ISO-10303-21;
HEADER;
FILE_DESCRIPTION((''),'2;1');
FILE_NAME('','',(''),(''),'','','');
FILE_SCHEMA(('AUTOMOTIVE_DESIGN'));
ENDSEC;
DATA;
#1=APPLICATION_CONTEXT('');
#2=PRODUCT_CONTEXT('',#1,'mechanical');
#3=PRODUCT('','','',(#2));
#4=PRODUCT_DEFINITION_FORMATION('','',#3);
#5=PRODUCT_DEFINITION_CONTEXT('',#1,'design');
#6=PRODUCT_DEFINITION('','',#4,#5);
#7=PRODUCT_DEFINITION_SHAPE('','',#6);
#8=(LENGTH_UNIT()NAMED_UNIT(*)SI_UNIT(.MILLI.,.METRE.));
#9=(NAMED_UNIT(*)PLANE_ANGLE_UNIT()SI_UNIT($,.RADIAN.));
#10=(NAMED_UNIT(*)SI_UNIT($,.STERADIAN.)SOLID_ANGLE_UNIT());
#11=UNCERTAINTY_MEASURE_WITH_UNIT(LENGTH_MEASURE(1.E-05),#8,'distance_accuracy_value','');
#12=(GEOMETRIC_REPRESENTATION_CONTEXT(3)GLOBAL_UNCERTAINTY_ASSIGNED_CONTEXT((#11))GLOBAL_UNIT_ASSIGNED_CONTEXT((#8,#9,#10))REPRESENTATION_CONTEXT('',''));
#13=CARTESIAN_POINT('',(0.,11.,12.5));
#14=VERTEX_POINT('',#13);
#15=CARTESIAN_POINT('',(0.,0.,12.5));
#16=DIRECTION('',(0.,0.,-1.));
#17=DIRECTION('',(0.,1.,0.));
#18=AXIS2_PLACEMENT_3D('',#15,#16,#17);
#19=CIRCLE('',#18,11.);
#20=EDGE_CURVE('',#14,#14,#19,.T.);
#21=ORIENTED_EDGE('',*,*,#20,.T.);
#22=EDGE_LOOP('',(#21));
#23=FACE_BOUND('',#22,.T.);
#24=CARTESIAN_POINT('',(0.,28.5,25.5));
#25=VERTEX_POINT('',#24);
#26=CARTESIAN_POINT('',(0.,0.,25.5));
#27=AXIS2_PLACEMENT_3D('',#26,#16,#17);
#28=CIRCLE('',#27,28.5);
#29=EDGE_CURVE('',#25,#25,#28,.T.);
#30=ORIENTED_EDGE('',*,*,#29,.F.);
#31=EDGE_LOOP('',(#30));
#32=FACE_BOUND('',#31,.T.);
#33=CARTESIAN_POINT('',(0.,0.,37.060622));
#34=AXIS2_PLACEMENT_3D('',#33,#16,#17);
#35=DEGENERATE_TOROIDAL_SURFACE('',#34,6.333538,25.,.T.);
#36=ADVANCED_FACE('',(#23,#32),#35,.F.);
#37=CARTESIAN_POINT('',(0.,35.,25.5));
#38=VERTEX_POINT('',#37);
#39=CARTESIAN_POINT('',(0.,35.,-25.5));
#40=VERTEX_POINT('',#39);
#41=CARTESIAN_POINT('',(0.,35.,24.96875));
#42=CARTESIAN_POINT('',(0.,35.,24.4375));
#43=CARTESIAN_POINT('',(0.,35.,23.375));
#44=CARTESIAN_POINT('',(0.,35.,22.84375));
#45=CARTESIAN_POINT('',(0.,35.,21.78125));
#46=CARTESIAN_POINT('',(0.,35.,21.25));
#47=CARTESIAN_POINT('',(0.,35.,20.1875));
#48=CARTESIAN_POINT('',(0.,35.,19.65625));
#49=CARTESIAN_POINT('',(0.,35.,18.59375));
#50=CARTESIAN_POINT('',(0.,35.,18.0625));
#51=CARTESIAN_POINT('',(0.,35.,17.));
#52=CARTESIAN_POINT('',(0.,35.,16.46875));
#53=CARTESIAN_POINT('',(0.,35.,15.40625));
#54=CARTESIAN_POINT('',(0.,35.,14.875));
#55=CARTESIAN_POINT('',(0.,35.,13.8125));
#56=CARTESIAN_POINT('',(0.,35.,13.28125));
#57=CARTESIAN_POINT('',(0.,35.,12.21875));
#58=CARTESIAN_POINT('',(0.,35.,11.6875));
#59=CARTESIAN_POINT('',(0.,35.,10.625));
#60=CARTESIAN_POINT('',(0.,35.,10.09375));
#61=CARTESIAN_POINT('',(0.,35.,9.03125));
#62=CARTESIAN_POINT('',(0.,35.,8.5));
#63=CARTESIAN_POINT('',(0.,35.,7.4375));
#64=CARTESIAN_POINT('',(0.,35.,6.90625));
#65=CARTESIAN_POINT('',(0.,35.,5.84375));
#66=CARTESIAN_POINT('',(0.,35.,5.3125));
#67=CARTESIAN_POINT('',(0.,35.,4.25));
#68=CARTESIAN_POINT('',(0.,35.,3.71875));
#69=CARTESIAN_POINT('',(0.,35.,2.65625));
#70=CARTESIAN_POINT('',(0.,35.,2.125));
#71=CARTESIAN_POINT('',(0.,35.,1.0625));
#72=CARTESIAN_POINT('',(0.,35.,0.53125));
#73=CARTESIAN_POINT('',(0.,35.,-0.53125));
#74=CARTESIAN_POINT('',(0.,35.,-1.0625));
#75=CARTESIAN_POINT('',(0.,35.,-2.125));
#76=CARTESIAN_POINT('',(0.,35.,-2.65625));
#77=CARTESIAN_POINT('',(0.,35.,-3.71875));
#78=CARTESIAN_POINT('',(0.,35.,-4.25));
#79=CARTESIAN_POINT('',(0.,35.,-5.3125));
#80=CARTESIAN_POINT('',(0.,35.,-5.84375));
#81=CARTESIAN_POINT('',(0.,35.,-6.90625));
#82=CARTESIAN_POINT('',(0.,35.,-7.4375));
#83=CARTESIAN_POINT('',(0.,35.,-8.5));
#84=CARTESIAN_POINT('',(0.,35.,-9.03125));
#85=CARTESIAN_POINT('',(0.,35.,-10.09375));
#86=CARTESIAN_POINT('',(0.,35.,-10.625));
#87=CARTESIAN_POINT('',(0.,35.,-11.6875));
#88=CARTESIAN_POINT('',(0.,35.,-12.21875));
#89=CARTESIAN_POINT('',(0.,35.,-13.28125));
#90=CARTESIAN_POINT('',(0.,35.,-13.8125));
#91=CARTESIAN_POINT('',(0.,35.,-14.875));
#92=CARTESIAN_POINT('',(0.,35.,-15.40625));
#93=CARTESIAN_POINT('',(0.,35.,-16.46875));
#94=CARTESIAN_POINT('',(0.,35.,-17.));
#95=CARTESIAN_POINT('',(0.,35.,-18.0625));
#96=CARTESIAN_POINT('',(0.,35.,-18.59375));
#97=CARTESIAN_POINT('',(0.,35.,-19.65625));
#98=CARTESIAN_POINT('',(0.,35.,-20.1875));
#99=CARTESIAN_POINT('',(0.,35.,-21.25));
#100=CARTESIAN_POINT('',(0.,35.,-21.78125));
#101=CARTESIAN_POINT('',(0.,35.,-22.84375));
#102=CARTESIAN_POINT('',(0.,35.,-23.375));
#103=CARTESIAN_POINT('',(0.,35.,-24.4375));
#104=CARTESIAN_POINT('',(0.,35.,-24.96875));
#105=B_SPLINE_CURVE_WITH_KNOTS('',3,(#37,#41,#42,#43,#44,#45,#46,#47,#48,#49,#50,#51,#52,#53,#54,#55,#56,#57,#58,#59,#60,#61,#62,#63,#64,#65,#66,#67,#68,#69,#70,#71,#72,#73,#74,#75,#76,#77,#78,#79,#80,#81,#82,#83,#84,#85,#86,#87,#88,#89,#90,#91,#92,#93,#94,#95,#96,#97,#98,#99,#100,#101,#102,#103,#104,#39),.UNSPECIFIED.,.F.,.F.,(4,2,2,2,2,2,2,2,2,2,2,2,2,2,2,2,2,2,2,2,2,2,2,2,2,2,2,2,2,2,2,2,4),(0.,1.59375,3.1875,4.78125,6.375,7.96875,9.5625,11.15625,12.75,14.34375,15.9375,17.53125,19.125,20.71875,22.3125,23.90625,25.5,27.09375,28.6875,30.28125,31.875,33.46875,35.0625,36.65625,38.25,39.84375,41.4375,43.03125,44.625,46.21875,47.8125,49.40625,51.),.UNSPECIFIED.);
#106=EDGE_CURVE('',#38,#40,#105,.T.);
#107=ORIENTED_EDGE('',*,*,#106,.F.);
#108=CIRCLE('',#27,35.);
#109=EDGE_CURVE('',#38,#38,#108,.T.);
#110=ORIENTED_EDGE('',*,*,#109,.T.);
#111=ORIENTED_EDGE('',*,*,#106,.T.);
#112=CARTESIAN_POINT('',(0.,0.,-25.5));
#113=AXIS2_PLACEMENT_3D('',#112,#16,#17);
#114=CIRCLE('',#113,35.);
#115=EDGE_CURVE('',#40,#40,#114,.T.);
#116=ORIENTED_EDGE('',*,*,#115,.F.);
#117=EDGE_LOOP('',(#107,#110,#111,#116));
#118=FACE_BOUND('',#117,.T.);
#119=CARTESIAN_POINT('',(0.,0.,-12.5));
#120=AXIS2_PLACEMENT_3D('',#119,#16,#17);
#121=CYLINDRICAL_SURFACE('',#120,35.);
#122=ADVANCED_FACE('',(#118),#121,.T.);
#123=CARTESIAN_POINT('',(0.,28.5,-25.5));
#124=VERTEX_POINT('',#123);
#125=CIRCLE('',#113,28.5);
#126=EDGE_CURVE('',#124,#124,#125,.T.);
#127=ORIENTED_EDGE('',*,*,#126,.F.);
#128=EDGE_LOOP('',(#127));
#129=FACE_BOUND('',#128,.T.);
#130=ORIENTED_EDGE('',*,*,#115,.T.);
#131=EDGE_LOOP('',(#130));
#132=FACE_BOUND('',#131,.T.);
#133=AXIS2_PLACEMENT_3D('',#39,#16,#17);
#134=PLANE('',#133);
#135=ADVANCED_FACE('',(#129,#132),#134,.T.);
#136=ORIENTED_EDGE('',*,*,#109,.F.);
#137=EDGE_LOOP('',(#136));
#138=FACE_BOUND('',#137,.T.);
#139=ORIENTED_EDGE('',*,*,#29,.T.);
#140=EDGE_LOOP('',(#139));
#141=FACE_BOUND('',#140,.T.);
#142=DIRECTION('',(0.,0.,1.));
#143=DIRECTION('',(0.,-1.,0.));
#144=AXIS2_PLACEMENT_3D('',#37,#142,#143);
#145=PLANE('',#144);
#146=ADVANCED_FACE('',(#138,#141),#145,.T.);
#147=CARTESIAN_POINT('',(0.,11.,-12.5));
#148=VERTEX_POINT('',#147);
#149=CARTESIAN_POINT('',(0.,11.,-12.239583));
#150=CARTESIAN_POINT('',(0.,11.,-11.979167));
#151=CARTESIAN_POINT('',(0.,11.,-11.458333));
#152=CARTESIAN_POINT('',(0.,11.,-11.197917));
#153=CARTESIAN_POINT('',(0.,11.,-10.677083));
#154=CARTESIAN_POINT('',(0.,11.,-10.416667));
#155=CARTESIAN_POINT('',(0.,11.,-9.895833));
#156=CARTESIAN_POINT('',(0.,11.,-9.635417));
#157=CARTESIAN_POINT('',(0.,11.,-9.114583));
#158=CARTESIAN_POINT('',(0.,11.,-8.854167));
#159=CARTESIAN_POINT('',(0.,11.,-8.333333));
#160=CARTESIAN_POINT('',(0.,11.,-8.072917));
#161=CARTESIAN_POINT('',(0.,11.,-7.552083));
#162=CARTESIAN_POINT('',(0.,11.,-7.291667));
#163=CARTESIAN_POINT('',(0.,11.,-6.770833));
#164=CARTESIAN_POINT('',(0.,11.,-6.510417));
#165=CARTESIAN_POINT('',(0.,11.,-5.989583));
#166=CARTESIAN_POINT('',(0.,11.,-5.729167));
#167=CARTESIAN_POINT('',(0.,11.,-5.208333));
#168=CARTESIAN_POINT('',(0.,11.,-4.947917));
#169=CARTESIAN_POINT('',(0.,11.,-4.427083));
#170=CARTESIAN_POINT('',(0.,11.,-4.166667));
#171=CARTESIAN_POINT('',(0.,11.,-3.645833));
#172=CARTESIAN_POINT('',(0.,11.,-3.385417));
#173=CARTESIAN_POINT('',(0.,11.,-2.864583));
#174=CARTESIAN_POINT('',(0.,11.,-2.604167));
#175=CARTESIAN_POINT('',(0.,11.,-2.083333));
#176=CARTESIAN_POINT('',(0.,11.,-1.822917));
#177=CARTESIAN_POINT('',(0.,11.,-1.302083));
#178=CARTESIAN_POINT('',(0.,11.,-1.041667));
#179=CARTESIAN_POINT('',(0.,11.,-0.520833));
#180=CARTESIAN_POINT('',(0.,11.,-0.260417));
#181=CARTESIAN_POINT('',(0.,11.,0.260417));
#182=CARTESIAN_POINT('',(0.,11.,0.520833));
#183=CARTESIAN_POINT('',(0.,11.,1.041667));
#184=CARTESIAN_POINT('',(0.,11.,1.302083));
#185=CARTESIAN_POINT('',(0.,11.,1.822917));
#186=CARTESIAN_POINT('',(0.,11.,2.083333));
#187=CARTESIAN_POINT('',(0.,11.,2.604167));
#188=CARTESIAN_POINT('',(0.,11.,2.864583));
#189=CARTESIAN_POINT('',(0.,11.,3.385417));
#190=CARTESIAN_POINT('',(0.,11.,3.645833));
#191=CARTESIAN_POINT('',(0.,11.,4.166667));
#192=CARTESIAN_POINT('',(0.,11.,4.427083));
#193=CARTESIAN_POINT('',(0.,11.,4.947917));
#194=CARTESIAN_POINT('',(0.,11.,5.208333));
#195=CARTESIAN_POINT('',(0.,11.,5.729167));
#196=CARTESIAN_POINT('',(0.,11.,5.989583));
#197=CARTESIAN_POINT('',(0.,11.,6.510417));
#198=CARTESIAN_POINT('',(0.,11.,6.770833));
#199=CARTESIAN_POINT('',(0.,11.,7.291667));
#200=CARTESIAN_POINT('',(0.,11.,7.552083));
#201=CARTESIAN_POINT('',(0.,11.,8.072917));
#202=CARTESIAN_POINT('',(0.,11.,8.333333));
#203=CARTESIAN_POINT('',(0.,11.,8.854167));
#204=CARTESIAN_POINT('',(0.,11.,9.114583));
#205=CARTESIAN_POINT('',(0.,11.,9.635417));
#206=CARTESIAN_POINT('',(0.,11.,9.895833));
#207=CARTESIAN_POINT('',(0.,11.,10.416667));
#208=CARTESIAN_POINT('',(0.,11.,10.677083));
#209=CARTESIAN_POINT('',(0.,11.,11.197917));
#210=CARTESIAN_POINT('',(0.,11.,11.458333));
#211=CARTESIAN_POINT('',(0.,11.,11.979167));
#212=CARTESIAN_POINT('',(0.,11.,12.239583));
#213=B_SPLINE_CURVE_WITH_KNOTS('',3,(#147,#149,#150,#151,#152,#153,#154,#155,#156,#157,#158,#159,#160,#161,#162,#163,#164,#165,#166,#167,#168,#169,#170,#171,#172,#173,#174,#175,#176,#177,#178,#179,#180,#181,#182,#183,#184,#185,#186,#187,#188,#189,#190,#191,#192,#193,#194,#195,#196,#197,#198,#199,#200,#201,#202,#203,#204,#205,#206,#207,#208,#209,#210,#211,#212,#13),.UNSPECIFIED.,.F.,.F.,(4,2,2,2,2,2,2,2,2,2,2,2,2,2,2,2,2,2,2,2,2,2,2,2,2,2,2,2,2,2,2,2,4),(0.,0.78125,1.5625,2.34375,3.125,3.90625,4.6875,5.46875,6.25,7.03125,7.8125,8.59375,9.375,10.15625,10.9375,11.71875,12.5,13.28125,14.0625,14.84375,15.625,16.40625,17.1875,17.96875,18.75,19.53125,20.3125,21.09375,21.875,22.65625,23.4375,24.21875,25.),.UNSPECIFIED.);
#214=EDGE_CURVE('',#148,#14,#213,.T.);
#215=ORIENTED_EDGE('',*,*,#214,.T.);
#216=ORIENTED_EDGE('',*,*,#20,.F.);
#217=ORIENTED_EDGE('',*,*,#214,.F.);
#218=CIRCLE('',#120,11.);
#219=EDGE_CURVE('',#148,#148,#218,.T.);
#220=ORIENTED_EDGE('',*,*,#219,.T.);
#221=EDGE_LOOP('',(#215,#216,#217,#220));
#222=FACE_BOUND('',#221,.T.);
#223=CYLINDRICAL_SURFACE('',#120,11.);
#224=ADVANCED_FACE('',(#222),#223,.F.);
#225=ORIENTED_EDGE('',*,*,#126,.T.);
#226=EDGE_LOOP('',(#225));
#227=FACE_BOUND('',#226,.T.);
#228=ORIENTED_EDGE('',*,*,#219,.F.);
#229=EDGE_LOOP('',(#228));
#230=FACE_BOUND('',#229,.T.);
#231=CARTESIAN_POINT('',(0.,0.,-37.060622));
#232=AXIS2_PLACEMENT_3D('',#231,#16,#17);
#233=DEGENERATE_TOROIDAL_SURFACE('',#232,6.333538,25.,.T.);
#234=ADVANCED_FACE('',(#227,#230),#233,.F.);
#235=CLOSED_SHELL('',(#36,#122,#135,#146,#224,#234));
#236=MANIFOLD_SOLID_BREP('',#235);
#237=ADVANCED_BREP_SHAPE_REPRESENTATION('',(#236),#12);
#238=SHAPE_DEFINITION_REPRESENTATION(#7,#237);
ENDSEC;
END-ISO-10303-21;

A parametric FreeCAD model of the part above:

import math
import FreeCAD as App
import Part
import Sketcher

V = App.Vector

doc = App.newDocument("Part")
params = doc.addObject("Spreadsheet::Sheet", "Params")
for row, (alias, value) in enumerate([
    ("sketch1_radius", "25 mm"),
    ("sketch1_height", "51 mm"),
    ("sketch1_height2", "25 mm"),
    ("sketch1_width", "6.5 mm"),
    ("revolution_angle", "360 deg"),
], start=1):
    params.set(f"A{row}", alias)
    params.set(f"B{row}", "=" + value)
    params.setAlias(f"B{row}", alias)

body = doc.addObject("PartDesign::Body", "Body")

# Sketch on YZ plane
sketch1 = body.newObject("Sketcher::SketchObject", "Sketch")
sketch1.AttachmentSupport = (doc.getObject("YZ_Plane"), [""])
sketch1.MapMode = "FlatFace"
sketch1.addGeometry(Part.LineSegment(V(35, -26, 0), V(35, 26, 0)), False)
sketch1.addGeometry(Part.LineSegment(V(35, 26, 0), V(28, 26, 0)), False)
sketch1.addGeometry(Part.ArcOfCircle(Part.Circle(V(6, 37, 0), V(0, 0, 1), 25), math.radians(-79), math.radians(-28)), False)
sketch1.addGeometry(Part.LineSegment(V(11, 12, 0), V(11, -12, 0)), False)
sketch1.addGeometry(Part.ArcOfCircle(Part.Circle(V(6, -37, 0), V(0, 0, 1), 25), math.radians(28), math.radians(79)), False)
sketch1.addGeometry(Part.LineSegment(V(28, -26, 0), V(35, -26, 0)), False)
sketch1.addConstraint(Sketcher.Constraint("Coincident", 0, 2, 1, 1))
sketch1.addConstraint(Sketcher.Constraint("Coincident", 1, 2, 2, 2))
sketch1.addConstraint(Sketcher.Constraint("Coincident", 2, 1, 3, 1))
sketch1.addConstraint(Sketcher.Constraint("Coincident", 3, 2, 4, 2))
sketch1.addConstraint(Sketcher.Constraint("Coincident", 4, 1, 5, 1))
sketch1.addConstraint(Sketcher.Constraint("Coincident", 5, 2, 0, 1))
sketch1.addConstraint(Sketcher.Constraint("Vertical", 0))
sketch1.addConstraint(Sketcher.Constraint("Horizontal", 1))
sketch1.addConstraint(Sketcher.Constraint("Vertical", 3))
sketch1.addConstraint(Sketcher.Constraint("Horizontal", 5))
sketch1.addConstraint(Sketcher.Constraint("Equal", 2, 4))
sketch1.addConstraint(Sketcher.Constraint("Symmetric", 2, 3, 4, 3, -1))
sketch1.addConstraint(Sketcher.Constraint("Vertical", 1, 2, 4, 1))
sketch1.addConstraint(Sketcher.Constraint("Radius", 2, 25.0))
sketch1.addConstraint(Sketcher.Constraint("DistanceY", 0, 1, 0, 2, 51.0))
sketch1.addConstraint(Sketcher.Constraint("DistanceY", 3, 2, 3, 1, 25.0))
sketch1.addConstraint(Sketcher.Constraint("DistanceX", 1, 2, 1, 1, 6.5))
sketch1.addConstraint(Sketcher.Constraint("DistanceX", -1, 1, 0, 2, 35.0))
sketch1.addConstraint(Sketcher.Constraint("DistanceX", -1, 1, 2, 1, 11.0))
sketch1.setExpression("Constraints[13]", "Params.sketch1_radius")
sketch1.setExpression("Constraints[14]", "Params.sketch1_height")
sketch1.setExpression("Constraints[15]", "Params.sketch1_height2")
sketch1.setExpression("Constraints[16]", "Params.sketch1_width")
revolution = body.newObject("PartDesign::Revolution", "Revolution")
revolution.Profile = sketch1
revolution.ReferenceAxis = (sketch1, ["V_Axis"])
revolution.setExpression("Angle", "Params.revolution_angle")

doc.recompute()
